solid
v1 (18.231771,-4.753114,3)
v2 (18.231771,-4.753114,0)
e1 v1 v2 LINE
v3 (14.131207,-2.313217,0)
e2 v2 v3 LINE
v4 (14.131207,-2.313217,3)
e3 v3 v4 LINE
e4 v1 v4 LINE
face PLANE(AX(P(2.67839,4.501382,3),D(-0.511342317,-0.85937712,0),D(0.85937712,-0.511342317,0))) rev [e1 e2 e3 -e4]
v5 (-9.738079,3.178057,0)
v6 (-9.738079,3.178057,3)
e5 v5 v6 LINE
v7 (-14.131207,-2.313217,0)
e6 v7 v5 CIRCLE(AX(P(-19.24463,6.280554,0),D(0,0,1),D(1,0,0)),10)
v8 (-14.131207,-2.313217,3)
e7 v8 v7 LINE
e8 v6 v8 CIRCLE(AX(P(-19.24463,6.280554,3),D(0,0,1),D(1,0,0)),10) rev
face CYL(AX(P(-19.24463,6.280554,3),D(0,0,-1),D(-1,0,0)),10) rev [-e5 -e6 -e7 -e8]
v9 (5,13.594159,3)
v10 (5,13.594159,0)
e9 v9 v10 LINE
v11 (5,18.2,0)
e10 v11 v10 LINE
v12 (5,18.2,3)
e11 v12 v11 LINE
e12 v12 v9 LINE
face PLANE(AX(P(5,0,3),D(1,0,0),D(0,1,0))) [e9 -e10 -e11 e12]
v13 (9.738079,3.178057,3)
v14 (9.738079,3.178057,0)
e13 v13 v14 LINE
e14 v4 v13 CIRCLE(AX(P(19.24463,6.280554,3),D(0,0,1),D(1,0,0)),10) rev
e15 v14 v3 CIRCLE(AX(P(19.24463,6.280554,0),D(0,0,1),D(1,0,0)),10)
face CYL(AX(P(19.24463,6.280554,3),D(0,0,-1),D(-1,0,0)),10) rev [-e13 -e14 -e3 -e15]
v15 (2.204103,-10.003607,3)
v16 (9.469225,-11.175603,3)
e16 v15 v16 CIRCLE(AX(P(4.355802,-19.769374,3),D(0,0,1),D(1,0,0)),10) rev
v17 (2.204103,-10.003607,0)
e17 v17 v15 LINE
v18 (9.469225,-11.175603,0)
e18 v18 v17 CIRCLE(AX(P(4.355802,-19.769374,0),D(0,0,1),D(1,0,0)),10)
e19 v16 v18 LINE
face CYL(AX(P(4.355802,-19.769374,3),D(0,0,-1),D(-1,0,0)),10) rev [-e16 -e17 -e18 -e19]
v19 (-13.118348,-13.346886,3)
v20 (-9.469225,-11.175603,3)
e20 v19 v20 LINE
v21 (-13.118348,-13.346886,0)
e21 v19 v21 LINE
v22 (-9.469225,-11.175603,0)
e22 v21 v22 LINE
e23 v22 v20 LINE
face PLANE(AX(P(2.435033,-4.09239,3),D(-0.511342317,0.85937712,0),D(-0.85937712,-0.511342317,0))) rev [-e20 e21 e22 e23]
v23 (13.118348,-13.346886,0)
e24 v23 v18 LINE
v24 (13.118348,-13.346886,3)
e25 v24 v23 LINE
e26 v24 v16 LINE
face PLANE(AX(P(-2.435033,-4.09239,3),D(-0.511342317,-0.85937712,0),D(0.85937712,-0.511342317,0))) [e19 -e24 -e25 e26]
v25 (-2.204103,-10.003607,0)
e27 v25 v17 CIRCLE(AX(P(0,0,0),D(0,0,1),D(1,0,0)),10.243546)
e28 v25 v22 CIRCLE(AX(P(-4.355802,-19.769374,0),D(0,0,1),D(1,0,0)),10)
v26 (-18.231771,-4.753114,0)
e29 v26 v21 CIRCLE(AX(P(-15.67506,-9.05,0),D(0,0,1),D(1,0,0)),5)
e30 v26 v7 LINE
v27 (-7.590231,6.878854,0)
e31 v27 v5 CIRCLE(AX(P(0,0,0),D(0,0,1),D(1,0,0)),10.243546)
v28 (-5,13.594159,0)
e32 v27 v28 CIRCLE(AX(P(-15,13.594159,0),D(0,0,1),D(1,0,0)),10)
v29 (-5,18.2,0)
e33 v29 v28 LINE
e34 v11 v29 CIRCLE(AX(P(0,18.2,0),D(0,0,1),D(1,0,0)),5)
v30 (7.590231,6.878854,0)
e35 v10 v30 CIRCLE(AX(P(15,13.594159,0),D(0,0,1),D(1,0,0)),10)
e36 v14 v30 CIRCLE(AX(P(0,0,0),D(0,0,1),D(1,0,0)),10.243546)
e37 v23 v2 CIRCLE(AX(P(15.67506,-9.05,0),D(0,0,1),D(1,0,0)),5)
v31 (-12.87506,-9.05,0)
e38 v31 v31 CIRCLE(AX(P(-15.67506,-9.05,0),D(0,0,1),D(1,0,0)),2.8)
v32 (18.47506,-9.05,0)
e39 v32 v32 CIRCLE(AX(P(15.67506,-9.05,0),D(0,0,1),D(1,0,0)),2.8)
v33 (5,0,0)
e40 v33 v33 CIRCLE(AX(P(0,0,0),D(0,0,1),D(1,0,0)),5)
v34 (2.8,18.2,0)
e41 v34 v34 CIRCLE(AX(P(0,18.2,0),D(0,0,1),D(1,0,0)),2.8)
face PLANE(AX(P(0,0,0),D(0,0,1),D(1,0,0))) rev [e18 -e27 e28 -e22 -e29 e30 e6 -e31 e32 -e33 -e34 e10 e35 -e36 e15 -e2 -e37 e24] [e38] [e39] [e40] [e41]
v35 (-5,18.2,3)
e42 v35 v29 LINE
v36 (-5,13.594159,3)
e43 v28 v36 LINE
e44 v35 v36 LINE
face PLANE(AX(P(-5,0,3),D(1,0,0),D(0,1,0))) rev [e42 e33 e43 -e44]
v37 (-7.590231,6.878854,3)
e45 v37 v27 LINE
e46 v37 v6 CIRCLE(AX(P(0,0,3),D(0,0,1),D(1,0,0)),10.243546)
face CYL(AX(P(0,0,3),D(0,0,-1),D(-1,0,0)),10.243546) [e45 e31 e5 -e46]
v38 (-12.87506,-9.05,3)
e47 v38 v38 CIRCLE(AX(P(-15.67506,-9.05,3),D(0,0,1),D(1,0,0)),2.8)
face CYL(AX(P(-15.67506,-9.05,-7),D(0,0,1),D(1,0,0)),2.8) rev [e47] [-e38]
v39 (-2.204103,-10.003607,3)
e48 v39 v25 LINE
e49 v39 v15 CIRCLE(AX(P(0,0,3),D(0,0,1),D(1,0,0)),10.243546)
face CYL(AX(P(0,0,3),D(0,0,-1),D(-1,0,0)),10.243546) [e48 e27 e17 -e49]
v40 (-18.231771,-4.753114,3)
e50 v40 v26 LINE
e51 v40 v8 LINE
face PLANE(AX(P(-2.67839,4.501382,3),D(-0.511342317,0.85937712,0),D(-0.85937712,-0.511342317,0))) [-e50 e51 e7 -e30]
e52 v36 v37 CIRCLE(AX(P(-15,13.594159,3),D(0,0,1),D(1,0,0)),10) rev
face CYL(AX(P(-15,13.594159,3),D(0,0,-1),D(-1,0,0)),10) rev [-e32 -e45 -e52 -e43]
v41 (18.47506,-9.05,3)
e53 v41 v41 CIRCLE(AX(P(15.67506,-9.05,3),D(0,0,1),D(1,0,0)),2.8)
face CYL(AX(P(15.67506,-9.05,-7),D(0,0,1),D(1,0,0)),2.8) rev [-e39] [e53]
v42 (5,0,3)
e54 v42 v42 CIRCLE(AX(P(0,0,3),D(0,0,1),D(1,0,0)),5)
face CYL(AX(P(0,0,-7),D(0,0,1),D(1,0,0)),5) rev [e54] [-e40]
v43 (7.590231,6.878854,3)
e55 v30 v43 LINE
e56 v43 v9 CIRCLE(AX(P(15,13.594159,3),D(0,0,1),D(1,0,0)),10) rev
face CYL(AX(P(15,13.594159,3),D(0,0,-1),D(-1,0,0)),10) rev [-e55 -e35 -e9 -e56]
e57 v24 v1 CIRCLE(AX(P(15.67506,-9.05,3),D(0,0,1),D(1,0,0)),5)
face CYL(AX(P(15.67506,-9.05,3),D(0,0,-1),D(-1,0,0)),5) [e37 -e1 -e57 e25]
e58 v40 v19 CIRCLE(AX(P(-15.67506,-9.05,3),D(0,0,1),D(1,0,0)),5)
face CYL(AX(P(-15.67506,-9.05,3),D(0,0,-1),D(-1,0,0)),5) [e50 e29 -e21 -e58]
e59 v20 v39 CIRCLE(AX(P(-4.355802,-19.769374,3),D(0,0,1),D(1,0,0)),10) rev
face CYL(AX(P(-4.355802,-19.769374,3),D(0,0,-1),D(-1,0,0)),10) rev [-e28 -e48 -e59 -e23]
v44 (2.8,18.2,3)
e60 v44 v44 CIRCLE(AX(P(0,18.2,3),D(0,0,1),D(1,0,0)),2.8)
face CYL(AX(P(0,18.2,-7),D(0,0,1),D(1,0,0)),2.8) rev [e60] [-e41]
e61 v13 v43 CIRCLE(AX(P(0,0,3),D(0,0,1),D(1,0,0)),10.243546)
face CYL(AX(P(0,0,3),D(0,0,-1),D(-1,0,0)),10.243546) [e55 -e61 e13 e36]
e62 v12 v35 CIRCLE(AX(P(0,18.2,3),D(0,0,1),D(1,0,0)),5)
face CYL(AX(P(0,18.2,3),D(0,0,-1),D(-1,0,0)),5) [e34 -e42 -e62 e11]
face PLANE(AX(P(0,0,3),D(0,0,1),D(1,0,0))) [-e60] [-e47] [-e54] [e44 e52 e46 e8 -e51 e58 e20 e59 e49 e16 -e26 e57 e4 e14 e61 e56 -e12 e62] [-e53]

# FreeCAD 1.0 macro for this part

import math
import FreeCAD as App
import Part
import Sketcher
from FreeCAD import Vector
Q = App.Units.Quantity


def edges_at(feature, points):
    """Names of the edges that pass closest to the given points."""
    edges = feature.Shape.Edges
    near = lambda p: min(range(len(edges)), key=lambda i: edges[i].distToShape(Part.Vertex(*p))[0])
    return sorted({f"Edge{near(p) + 1}" for p in points})

doc = App.newDocument("Part")
params = doc.addObject("Spreadsheet::Sheet", "Params")
for row, (alias, value) in enumerate([
    ("sketch1_radius", "5 mm"),
    ("pad1_length", "3 mm"),
    ("sketch2_diameter", "5.6 mm"),
    ("pocket1_length", "10 mm"),
    ("sketch3_diameter", "10 mm"),
    ("pocket2_length", "10 mm"),
    ("fillet_radius", "10 mm"),
], start=1):
    params.set(f"A{row}", alias)
    params.set(f"B{row}", "=" + value)
    params.setAlias(f"B{row}", alias)

body = doc.addObject("PartDesign::Body", "Body")

# Sketch on XY plane
sketch1 = body.newObject("Sketcher::SketchObject", "Sketch")
sketch1.AttachmentSupport = (doc.getObject("XY_Plane"), [""])
sketch1.MapMode = "FlatFace"
sketch1.addGeometry([
    Part.LineSegment(Vector(-13.118348, -13.346886, 0), Vector(-5.358962, -8.729934, 0)),  # 0
    Part.ArcOfCircle(Part.Circle(Vector(0, 0, 0), Vector(0, 0, 1), 10.243546), math.radians(-121.544123), math.radians(-58.455877)),  # 1
    Part.LineSegment(Vector(5.358962, -8.729934, 0), Vector(13.118348, -13.346886, 0)),  # 2
    Part.ArcOfCircle(Part.Circle(Vector(15.67506, -9.05, 0), Vector(0, 0, 1), 5), math.radians(-120.753282), math.radians(59.246718)),  # 3
    Part.LineSegment(Vector(18.231771, -4.753114, 0), Vector(10.243546, 0, 0)),  # 4
    Part.ArcOfCircle(Part.Circle(Vector(0, 0, 0), Vector(0, 0, 1), 10.243546), math.radians(0), math.radians(60.783421)),  # 5
    Part.LineSegment(Vector(5, 8.940371, 0), Vector(5, 18.2, 0)),  # 6
    Part.ArcOfCircle(Part.Circle(Vector(0, 18.2, 0), Vector(0, 0, 1), 5), math.radians(0), math.radians(180)),  # 7
    Part.LineSegment(Vector(-5, 18.2, 0), Vector(-5, 8.940371, 0)),  # 8
    Part.ArcOfCircle(Part.Circle(Vector(0, 0, 0), Vector(0, 0, 1), 10.243546), math.radians(119.216579), math.radians(180)),  # 9
    Part.LineSegment(Vector(-10.243546, 0, 0), Vector(-18.231771, -4.753114, 0)),  # 10
    Part.ArcOfCircle(Part.Circle(Vector(-15.67506, -9.05, 0), Vector(0, 0, 1), 5), math.radians(120.753282), math.radians(300.753282)),  # 11
], False)
sketch1.addConstraint([
    Sketcher.Constraint("Coincident", 0, 2, 1, 1),
    Sketcher.Constraint("Coincident", 1, 2, 2, 1),
    Sketcher.Constraint("Tangent", 2, 2, 3, 1),
    Sketcher.Constraint("Tangent", 3, 2, 4, 1),
    Sketcher.Constraint("Coincident", 4, 2, 5, 1),
    Sketcher.Constraint("Coincident", 5, 2, 6, 1),
    Sketcher.Constraint("Tangent", 6, 2, 7, 1),
    Sketcher.Constraint("Tangent", 7, 2, 8, 1),
    Sketcher.Constraint("Coincident", 8, 2, 9, 1),
    Sketcher.Constraint("Coincident", 9, 2, 10, 1),
    Sketcher.Constraint("Tangent", 10, 2, 11, 1),
    Sketcher.Constraint("Tangent", 11, 2, 0, 1),
    Sketcher.Constraint("Vertical", 6),
    Sketcher.Constraint("Vertical", 8),
    Sketcher.Constraint("Coincident", 1, 3, -1, 1),
    Sketcher.Constraint("Coincident", 5, 3, -1, 1),
    Sketcher.Constraint("Coincident", 9, 3, -1, 1),
    Sketcher.Constraint("Equal", 1, 5),
    Sketcher.Constraint("Equal", 3, 7),
    Sketcher.Constraint("Equal", 5, 9),
    Sketcher.Constraint("Equal", 7, 11),
    Sketcher.Constraint("Symmetric", 3, 3, 11, 3, -2),
    Sketcher.Constraint("PointOnObject", 7, 3, -2),
    Sketcher.Constraint("PointOnObject", 4, 2, -1),
    Sketcher.Constraint("PointOnObject", 9, 2, -1),
    Sketcher.Constraint("Parallel", 2, 4),
    Sketcher.Constraint("Parallel", 0, 10),
    Sketcher.Constraint("Radius", 3, Q("5 mm")),
    Sketcher.Constraint("DistanceY", -1, 1, 7, 3, Q("18.2 mm")),
    Sketcher.Constraint("DistanceY", 3, 3, -1, 1, Q("9.05 mm")),
    Sketcher.Constraint("Radius", 1, Q("10.243546 mm")),
    Sketcher.Constraint("Distance", 0, Q("9.029081 mm")),
])
sketch1.setExpression("Constraints[27]", "Params.sketch1_radius")
pad1 = body.newObject("PartDesign::Pad", "Pad")
pad1.Profile = sketch1
pad1.setExpression("Length", "Params.pad1_length")

# Sketch on XY plane
sketch2 = body.newObject("Sketcher::SketchObject", "Sketch001")
sketch2.AttachmentSupport = (doc.getObject("XY_Plane"), [""])
sketch2.MapMode = "FlatFace"
sketch2.AttachmentOffset = App.Placement(Vector(0, 0, 3), App.Rotation())
sketch2.addGeometry([
    Part.Circle(Vector(0, 18.2, 0), Vector(0, 0, 1), 2.8),
    Part.Circle(Vector(15.67506, -9.05, 0), Vector(0, 0, 1), 2.8),
    Part.Circle(Vector(-15.67506, -9.05, 0), Vector(0, 0, 1), 2.8),
], False)
sketch2.addConstraint([
    Sketcher.Constraint("Equal", 0, 1),
    Sketcher.Constraint("Equal", 1, 2),
    Sketcher.Constraint("Symmetric", 1, 3, 2, 3, -2),
    Sketcher.Constraint("PointOnObject", 0, 3, -2),
    Sketcher.Constraint("Diameter", 0, Q("5.6 mm")),
    Sketcher.Constraint("DistanceY", -1, 1, 0, 3, Q("18.2 mm")),
    Sketcher.Constraint("DistanceY", 1, 3, -1, 1, Q("9.05 mm")),
    Sketcher.Constraint("DistanceX", -1, 1, 1, 3, Q("15.67506 mm")),
])
sketch2.setExpression("Constraints[4]", "Params.sketch2_diameter")
pocket1 = body.newObject("PartDesign::Pocket", "Pocket")
pocket1.Profile = sketch2
pocket1.setExpression("Length", "Params.pocket1_length")

# Sketch on XY plane
sketch3 = body.newObject("Sketcher::SketchObject", "Sketch002")
sketch3.AttachmentSupport = (doc.getObject("XY_Plane"), [""])
sketch3.MapMode = "FlatFace"
sketch3.AttachmentOffset = App.Placement(Vector(0, 0, 3), App.Rotation())
sketch3.addGeometry(Part.Circle(Vector(0, 0, 0), Vector(0, 0, 1), 5), False)
sketch3.addConstraint([
    Sketcher.Constraint("Coincident", 0, 3, -1, 1),
    Sketcher.Constraint("Diameter", 0, Q("10 mm")),
])
sketch3.setExpression("Constraints[1]", "Params.sketch3_diameter")
pocket2 = body.newObject("PartDesign::Pocket", "Pocket001")
pocket2.Profile = sketch3
pocket2.setExpression("Length", "Params.pocket2_length")
doc.recompute()

fillet = body.newObject("PartDesign::Fillet", "Fillet")
fillet.Base = (pocket2, edges_at(pocket2, [
    (-10.244, 0, 1.5),
    (-5, 8.94, 1.5),
    (5, 8.94, 1.5),
    (10.244, 0, 1.5),
    (5.359, -8.73, 1.5),
    (-5.359, -8.73, 1.5),
]))
fillet.setExpression("Radius", "Params.fillet_radius")

doc.recompute()
